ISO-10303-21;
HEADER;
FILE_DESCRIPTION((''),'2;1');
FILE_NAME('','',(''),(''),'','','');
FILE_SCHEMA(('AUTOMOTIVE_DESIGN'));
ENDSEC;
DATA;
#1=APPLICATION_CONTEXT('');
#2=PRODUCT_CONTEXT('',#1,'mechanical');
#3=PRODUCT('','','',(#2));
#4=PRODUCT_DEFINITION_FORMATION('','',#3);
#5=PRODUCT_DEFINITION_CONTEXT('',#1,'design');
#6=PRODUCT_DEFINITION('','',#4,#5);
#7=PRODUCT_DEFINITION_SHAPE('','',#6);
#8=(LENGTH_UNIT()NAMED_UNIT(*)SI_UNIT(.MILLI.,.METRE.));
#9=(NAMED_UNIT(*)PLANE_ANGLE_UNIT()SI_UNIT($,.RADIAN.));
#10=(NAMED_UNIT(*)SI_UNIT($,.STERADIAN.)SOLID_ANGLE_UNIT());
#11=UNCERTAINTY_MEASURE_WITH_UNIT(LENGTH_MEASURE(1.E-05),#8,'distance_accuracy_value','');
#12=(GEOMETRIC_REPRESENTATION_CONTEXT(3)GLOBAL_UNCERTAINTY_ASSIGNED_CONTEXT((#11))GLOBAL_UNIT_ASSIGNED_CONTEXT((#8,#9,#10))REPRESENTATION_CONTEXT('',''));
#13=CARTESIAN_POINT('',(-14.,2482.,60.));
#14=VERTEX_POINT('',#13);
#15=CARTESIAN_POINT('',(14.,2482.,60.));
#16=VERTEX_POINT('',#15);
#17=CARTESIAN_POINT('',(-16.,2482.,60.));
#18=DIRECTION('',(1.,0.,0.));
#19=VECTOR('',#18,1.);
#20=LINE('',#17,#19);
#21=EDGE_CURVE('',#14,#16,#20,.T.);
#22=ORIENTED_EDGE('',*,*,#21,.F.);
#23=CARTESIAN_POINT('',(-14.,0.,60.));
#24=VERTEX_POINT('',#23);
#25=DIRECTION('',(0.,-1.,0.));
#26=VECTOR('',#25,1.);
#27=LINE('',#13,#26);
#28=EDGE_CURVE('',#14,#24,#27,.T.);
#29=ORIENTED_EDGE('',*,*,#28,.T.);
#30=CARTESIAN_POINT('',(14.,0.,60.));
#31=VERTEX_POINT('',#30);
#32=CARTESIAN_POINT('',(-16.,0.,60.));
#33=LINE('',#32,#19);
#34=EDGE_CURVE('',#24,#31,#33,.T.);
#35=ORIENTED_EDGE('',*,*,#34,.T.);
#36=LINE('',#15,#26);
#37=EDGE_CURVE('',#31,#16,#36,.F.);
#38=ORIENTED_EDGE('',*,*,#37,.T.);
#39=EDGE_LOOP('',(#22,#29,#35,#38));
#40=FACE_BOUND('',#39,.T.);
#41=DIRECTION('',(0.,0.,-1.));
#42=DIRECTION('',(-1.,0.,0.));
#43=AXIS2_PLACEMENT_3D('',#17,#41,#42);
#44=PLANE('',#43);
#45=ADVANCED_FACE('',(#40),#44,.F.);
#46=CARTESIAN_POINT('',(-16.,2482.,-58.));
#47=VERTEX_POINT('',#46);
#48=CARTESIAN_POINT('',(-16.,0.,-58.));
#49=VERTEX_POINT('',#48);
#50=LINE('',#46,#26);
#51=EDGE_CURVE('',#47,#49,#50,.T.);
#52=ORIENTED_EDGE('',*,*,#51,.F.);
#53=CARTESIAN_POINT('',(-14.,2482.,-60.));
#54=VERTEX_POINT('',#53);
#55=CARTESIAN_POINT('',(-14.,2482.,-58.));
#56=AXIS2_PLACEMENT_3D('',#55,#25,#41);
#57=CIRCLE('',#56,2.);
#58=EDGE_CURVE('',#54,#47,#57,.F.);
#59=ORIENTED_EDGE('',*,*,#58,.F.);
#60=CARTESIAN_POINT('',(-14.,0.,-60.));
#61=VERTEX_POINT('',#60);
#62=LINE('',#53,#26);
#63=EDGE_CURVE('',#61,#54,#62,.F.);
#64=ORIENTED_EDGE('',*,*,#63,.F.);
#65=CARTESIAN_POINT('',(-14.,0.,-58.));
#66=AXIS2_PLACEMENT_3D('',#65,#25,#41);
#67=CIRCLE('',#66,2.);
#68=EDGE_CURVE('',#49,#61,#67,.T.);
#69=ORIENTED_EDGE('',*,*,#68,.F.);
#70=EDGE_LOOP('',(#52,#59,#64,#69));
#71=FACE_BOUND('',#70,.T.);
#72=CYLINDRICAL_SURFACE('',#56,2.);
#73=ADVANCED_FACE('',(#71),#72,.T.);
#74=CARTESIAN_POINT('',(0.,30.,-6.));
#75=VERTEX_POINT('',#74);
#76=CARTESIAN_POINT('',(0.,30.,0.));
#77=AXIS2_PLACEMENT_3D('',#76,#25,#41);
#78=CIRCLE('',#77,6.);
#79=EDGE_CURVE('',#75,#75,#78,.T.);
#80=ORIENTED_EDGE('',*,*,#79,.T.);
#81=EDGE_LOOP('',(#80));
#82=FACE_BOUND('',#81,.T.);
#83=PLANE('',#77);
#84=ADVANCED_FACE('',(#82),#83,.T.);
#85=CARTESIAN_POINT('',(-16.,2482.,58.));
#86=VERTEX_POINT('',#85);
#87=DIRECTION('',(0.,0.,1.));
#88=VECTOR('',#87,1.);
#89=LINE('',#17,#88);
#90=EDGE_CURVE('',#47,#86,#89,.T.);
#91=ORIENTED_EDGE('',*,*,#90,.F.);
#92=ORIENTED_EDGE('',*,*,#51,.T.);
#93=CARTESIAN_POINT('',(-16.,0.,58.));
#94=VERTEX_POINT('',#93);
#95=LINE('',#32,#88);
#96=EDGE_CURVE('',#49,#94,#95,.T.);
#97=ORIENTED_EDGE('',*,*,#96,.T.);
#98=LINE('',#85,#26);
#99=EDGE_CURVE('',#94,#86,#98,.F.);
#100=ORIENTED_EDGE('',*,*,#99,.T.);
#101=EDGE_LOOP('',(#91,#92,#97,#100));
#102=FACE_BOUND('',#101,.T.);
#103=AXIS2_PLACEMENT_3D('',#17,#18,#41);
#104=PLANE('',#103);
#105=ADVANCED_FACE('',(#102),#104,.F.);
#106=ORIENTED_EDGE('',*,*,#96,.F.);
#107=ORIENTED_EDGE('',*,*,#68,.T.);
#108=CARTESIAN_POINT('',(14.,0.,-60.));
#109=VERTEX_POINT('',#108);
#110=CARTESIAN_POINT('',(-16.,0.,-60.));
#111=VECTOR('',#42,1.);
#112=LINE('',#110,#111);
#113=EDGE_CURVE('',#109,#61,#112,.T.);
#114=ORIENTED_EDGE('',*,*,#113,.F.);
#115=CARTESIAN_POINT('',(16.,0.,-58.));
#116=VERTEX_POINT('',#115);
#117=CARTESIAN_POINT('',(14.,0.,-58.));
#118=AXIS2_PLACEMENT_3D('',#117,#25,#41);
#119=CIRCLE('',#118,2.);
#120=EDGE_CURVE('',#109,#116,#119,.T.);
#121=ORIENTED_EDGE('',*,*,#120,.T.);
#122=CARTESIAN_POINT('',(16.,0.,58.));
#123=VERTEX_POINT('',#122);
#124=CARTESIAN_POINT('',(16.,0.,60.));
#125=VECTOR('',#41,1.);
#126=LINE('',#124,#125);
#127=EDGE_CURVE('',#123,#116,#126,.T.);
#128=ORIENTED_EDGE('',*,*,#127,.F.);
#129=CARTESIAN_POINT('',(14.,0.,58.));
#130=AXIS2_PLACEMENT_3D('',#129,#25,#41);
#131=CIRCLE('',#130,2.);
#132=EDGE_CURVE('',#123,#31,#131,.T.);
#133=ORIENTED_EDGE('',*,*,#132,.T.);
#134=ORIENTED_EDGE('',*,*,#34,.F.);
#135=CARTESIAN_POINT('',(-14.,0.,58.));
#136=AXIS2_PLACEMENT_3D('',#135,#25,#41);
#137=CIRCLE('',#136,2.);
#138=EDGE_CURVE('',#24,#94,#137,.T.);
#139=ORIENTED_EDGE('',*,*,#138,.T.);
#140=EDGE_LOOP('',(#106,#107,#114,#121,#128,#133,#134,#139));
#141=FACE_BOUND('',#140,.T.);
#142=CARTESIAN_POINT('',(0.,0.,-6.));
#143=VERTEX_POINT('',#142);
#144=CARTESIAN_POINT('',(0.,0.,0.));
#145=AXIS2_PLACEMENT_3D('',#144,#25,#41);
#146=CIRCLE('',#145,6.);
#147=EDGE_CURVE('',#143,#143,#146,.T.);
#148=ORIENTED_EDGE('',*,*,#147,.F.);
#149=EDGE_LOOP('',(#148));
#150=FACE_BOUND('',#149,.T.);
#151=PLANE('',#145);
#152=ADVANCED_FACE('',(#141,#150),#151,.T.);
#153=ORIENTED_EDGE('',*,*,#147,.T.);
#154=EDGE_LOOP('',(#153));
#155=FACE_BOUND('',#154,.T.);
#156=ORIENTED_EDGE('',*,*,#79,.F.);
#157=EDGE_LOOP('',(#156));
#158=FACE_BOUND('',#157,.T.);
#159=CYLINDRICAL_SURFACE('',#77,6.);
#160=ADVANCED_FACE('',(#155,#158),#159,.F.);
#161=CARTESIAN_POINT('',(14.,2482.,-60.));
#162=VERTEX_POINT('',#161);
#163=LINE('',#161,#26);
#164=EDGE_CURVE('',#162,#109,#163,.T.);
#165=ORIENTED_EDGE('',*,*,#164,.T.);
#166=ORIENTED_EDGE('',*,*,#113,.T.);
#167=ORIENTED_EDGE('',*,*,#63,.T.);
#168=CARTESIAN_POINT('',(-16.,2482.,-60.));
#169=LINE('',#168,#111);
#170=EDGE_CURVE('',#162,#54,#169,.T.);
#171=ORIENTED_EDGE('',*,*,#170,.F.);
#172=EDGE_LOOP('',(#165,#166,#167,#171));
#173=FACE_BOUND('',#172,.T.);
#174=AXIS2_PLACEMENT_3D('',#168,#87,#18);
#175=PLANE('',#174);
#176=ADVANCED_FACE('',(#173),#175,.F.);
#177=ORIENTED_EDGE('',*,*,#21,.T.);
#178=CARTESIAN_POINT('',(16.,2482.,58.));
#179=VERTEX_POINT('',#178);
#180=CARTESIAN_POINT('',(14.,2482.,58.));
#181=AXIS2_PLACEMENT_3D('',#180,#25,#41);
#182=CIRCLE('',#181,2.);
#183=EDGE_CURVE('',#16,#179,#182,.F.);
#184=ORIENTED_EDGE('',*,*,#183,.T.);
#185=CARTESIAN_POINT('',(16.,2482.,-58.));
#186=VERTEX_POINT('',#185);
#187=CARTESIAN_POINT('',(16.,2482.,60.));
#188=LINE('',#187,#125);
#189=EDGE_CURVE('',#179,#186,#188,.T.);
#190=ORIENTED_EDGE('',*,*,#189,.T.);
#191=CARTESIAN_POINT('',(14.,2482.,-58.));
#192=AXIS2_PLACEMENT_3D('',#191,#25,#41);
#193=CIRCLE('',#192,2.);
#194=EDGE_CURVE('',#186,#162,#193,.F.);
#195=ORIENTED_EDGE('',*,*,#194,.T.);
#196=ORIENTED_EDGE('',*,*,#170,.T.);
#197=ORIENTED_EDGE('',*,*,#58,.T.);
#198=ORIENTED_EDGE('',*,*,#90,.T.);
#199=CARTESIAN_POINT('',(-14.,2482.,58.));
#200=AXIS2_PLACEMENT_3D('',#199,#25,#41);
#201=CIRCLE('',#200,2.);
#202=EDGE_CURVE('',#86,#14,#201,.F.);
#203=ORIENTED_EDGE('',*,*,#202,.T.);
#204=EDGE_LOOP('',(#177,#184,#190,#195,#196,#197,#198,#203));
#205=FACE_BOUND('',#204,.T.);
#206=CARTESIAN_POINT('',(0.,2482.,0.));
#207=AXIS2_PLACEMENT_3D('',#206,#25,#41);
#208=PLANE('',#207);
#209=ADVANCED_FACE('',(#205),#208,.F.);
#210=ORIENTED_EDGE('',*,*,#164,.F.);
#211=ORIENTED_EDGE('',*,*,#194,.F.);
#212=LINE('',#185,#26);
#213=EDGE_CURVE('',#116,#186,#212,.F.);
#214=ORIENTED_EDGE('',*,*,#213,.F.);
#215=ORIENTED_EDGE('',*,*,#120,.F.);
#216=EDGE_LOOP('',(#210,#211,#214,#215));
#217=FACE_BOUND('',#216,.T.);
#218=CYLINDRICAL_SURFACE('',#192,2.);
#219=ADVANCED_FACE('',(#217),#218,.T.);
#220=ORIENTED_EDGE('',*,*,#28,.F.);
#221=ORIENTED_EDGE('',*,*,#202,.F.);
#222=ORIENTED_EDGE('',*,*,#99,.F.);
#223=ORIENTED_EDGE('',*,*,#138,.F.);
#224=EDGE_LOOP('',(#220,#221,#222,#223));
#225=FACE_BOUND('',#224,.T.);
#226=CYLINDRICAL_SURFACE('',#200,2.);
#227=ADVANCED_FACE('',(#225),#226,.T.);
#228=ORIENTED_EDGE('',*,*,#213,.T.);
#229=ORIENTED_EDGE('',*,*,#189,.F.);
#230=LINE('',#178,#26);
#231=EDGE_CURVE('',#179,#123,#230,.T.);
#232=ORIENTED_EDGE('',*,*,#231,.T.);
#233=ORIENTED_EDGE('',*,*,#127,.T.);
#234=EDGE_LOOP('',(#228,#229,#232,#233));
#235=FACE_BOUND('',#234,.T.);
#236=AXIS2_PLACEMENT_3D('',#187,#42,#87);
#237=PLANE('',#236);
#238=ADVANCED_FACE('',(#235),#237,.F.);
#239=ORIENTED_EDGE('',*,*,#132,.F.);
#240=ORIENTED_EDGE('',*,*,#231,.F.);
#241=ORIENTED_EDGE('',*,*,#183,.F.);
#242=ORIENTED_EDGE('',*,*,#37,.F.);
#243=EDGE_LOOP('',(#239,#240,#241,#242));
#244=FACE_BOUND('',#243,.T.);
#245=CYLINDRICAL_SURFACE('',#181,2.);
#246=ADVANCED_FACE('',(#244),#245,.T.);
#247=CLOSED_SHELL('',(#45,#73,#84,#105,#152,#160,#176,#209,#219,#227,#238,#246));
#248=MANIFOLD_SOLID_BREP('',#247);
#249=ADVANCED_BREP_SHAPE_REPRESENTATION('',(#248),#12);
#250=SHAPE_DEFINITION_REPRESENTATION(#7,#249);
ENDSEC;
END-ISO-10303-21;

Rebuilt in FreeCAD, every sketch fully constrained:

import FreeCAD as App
import Part
import Sketcher

V = App.Vector


def edges_at(feature, points):
    """Names of the edges that pass closest to the given points."""
    edges = feature.Shape.Edges
    near = lambda p: min(range(len(edges)), key=lambda i: edges[i].distToShape(Part.Vertex(*p))[0])
    return sorted({f"Edge{near(p) + 1}" for p in points})


def add_polygon(sketch, points):
    """Adds a closed chain of lines whose ends are joined by coincident constraints."""
    first, n = sketch.GeometryCount, len(points)
    for a, b in zip(points, points[1:] + points[:1]):
        sketch.addGeometry(Part.LineSegment(App.Vector(*a, 0), App.Vector(*b, 0)), False)
    for i in range(n):
        sketch.addConstraint(Sketcher.Constraint("Coincident", first + i, 2, first + (i + 1) % n, 1))

doc = App.newDocument("Part")
params = doc.addObject("Spreadsheet::Sheet", "Params")
for row, (alias, value) in enumerate([
    ("sketch1_width", "32 mm"),
    ("sketch1_height", "120 mm"),
    ("pad1_length", "2482 mm"),
    ("fillet_radius", "2 mm"),
    ("sketch2_diameter", "12 mm"),
    ("pocket1_length", "30 mm"),
], start=1):
    params.set(f"A{row}", alias)
    params.set(f"B{row}", "=" + value)
    params.setAlias(f"B{row}", alias)

body = doc.addObject("PartDesign::Body", "Body")

sketch1 = body.newObject("Sketcher::SketchObject", "Sketch")
sketch1.AttachmentSupport = (doc.getObject("XZ_Plane"), [""])
sketch1.MapMode = "FlatFace"
add_polygon(sketch1, [(-16, -60), (-16, 60), (16, 60), (16, -60)])
sketch1.addConstraint(Sketcher.Constraint("Vertical", 0))
sketch1.addConstraint(Sketcher.Constraint("Horizontal", 1))
sketch1.addConstraint(Sketcher.Constraint("Vertical", 2))
sketch1.addConstraint(Sketcher.Constraint("Horizontal", 3))
sketch1.addConstraint(Sketcher.Constraint("Symmetric", 0, 2, 2, 2, -1, 1))
sketch1.addConstraint(Sketcher.Constraint("DistanceX", 1, 1, 1, 2, 32.0))
sketch1.addConstraint(Sketcher.Constraint("DistanceY", 0, 1, 0, 2, 120.0))
sketch1.setExpression("Constraints[9]", "Params.sketch1_width")
sketch1.setExpression("Constraints[10]", "Params.sketch1_height")
pad1 = body.newObject("PartDesign::Pad", "Pad")
pad1.Profile = sketch1
pad1.setExpression("Length", "Params.pad1_length")
pad1.Reversed = True
doc.recompute()

fillet = body.newObject("PartDesign::Fillet", "Fillet")
fillet.Base = (pad1, edges_at(pad1, [
    (16, 1241, 60),
    (-16, 1241, 60),
    (-16, 1241, -60),
    (16, 1241, -60),
]))
fillet.setExpression("Radius", "Params.fillet_radius")

sketch2 = body.newObject("Sketcher::SketchObject", "Sketch001")
sketch2.AttachmentSupport = (doc.getObject("XZ_Plane"), [""])
sketch2.MapMode = "FlatFace"
sketch2.addGeometry(Part.Circle(V(0, 0, 0), V(0, 0, 1), 6), False)
sketch2.addConstraint(Sketcher.Constraint("Coincident", 0, 3, -1, 1))
sketch2.addConstraint(Sketcher.Constraint("Diameter", 0, 12.0))
sketch2.setExpression("Constraints[1]", "Params.sketch2_diameter")
pocket1 = body.newObject("PartDesign::Pocket", "Pocket")
pocket1.Profile = sketch2
pocket1.setExpression("Length", "Params.pocket1_length")

doc.recompute()
